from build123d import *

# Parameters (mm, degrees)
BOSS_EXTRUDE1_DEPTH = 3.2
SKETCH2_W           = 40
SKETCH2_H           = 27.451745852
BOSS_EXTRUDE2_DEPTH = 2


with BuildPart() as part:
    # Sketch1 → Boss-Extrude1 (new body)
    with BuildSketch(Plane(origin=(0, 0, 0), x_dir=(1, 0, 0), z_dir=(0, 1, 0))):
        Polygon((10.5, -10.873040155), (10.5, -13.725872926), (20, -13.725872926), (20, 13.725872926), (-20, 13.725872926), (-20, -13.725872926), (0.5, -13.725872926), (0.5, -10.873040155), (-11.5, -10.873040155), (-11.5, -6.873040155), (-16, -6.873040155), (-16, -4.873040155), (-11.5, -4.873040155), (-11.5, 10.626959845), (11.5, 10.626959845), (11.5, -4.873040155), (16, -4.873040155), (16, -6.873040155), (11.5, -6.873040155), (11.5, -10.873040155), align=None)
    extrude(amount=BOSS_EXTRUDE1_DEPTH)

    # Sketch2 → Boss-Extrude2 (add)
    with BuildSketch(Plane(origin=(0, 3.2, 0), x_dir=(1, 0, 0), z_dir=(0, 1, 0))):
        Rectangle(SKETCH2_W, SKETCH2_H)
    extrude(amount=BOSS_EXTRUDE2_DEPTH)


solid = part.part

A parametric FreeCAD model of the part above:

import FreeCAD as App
import Part
import Sketcher

V = App.Vector
Q = App.Units.Quantity


def add_polygon(sketch, points):
    """Adds a closed chain of lines whose ends are joined by coincident constraints."""
    first, n = sketch.GeometryCount, len(points)
    for a, b in zip(points, points[1:] + points[:1]):
        sketch.addGeometry(Part.LineSegment(App.Vector(*a, 0), App.Vector(*b, 0)), False)
    for i in range(n):
        sketch.addConstraint(Sketcher.Constraint("Coincident", first + i, 2, first + (i + 1) % n, 1))

doc = App.newDocument("Part")
params = doc.addObject("Spreadsheet::Sheet", "Params")
for row, (alias, value) in enumerate([
    ("sketch1_width", "40 mm"),
    ("sketch1_width2", "12 mm"),
    ("sketch1_width3", "23 mm"),
    ("sketch1_width4", "1 mm"),
    ("sketch1_height", "4 mm"),
    ("pad1_length", "3.2 mm"),
    ("sketch2_width", "40 mm"),
    ("pad2_length", "2 mm"),
], start=1):
    params.set(f"A{row}", alias)
    params.set(f"B{row}", "=" + value)
    params.setAlias(f"B{row}", alias)

body = doc.addObject("PartDesign::Body", "Body")

sketch1 = doc.addObject("Sketcher::SketchObject", "Sketch")
body.addObject(sketch1)
sketch1.AttachmentSupport = (doc.XZ_Plane, [""])
sketch1.MapMode = "FlatFace"
add_polygon(sketch1, [(10.5, 10.9), (10.5, 13.7), (20, 13.7), (20, -13.7), (-20, -13.7), (-20, 13.7), (0.5, 13.7), (0.5, 10.9), (-11.5, 10.9), (-11.5, 6.9), (-16, 6.9), (-16, 4.9), (-11.5, 4.9), (-11.5, -10.6), (11.5, -10.6), (11.5, 4.9), (16, 4.9), (16, 6.9), (11.5, 6.9), (11.5, 10.9)])
sketch1.addConstraint([
    Sketcher.Constraint("Vertical", 0),
    Sketcher.Constraint("Horizontal", 1),
    Sketcher.Constraint("Vertical", 2),
    Sketcher.Constraint("Horizontal", 3),
    Sketcher.Constraint("Vertical", 4),
    Sketcher.Constraint("Horizontal", 5),
    Sketcher.Constraint("Vertical", 6),
    Sketcher.Constraint("Horizontal", 7),
    Sketcher.Constraint("Vertical", 8),
    Sketcher.Constraint("Horizontal", 9),
    Sketcher.Constraint("Vertical", 10),
    Sketcher.Constraint("Horizontal", 11),
    Sketcher.Constraint("Vertical", 12),
    Sketcher.Constraint("Horizontal", 13),
    Sketcher.Constraint("Vertical", 14),
    Sketcher.Constraint("Horizontal", 15),
    Sketcher.Constraint("Vertical", 16),
    Sketcher.Constraint("Horizontal", 17),
    Sketcher.Constraint("Vertical", 18),
    Sketcher.Constraint("Horizontal", 19),
    Sketcher.Constraint("Symmetric", 1, 2, 3, 2, -1, 1),
    Sketcher.Constraint("Symmetric", 11, 2, 14, 2, -2),
    Sketcher.Constraint("Symmetric", 9, 2, 16, 2, -2),
    Sketcher.Constraint("Symmetric", 7, 2, 18, 2, -2),
    Sketcher.Constraint("Horizontal", 1, 2, 4, 2),
    Sketcher.Constraint("Vertical", 8, 2, 11, 2),
    Sketcher.Constraint("DistanceX", 3, 2, 3, 1, Q("40 mm")),
    Sketcher.Constraint("DistanceX", 7, 2, 7, 1, Q("12 mm")),
    Sketcher.Constraint("DistanceX", 13, 1, 13, 2, Q("23 mm")),
    Sketcher.Constraint("DistanceX", 19, 2, 19, 1, Q("1 mm")),
    Sketcher.Constraint("DistanceY", 8, 2, 8, 1, Q("4 mm")),
    Sketcher.Constraint("DistanceY", 10, 2, 10, 1, Q("2 mm")),
    Sketcher.Constraint("DistanceX", 9, 2, 9, 1, Q("4.5 mm")),
    Sketcher.Constraint("DistanceY", 12, 2, 12, 1, Q("15.5 mm")),
    Sketcher.Constraint("DistanceY", 0, 1, 0, 2, Q("2.852833 mm")),
    Sketcher.Constraint("DistanceY", 2, 2, 2, 1, Q("27.451746 mm")),
])
sketch1.setExpression("Constraints[46]", "Params.sketch1_width")
sketch1.setExpression("Constraints[47]", "Params.sketch1_width2")
sketch1.setExpression("Constraints[48]", "Params.sketch1_width3")
sketch1.setExpression("Constraints[49]", "Params.sketch1_width4")
sketch1.setExpression("Constraints[50]", "Params.sketch1_height")
pad1 = doc.addObject("PartDesign::Pad", "Pad")
body.addObject(pad1)
pad1.Profile = sketch1
pad1.setExpression("Length", "Params.pad1_length")
pad1.Reversed = True

sketch2 = doc.addObject("Sketcher::SketchObject", "Sketch001")
body.addObject(sketch2)
sketch2.AttachmentSupport = (doc.XZ_Plane, [""])
sketch2.MapMode = "FlatFace"
sketch2.AttachmentOffset = App.Placement(V(0, 0, -3.2), App.Rotation())
add_polygon(sketch2, [(-20, -14), (-20, 14), (20, 14), (20, -14)])
sketch2.addConstraint([
    Sketcher.Constraint("Vertical", 0),
    Sketcher.Constraint("Horizontal", 1),
    Sketcher.Constraint("Vertical", 2),
    Sketcher.Constraint("Horizontal", 3),
    Sketcher.Constraint("Symmetric", 0, 2, 2, 2, -1, 1),
    Sketcher.Constraint("DistanceX", 1, 1, 1, 2, Q("40 mm")),
    Sketcher.Constraint("DistanceY", 0, 1, 0, 2, Q("27.451746 mm")),
])
sketch2.setExpression("Constraints[9]", "Params.sketch2_width")
pad2 = doc.addObject("PartDesign::Pad", "Pad001")
body.addObject(pad2)
pad2.Profile = sketch2
pad2.setExpression("Length", "Params.pad2_length")
pad2.Reversed = True

doc.recompute()
